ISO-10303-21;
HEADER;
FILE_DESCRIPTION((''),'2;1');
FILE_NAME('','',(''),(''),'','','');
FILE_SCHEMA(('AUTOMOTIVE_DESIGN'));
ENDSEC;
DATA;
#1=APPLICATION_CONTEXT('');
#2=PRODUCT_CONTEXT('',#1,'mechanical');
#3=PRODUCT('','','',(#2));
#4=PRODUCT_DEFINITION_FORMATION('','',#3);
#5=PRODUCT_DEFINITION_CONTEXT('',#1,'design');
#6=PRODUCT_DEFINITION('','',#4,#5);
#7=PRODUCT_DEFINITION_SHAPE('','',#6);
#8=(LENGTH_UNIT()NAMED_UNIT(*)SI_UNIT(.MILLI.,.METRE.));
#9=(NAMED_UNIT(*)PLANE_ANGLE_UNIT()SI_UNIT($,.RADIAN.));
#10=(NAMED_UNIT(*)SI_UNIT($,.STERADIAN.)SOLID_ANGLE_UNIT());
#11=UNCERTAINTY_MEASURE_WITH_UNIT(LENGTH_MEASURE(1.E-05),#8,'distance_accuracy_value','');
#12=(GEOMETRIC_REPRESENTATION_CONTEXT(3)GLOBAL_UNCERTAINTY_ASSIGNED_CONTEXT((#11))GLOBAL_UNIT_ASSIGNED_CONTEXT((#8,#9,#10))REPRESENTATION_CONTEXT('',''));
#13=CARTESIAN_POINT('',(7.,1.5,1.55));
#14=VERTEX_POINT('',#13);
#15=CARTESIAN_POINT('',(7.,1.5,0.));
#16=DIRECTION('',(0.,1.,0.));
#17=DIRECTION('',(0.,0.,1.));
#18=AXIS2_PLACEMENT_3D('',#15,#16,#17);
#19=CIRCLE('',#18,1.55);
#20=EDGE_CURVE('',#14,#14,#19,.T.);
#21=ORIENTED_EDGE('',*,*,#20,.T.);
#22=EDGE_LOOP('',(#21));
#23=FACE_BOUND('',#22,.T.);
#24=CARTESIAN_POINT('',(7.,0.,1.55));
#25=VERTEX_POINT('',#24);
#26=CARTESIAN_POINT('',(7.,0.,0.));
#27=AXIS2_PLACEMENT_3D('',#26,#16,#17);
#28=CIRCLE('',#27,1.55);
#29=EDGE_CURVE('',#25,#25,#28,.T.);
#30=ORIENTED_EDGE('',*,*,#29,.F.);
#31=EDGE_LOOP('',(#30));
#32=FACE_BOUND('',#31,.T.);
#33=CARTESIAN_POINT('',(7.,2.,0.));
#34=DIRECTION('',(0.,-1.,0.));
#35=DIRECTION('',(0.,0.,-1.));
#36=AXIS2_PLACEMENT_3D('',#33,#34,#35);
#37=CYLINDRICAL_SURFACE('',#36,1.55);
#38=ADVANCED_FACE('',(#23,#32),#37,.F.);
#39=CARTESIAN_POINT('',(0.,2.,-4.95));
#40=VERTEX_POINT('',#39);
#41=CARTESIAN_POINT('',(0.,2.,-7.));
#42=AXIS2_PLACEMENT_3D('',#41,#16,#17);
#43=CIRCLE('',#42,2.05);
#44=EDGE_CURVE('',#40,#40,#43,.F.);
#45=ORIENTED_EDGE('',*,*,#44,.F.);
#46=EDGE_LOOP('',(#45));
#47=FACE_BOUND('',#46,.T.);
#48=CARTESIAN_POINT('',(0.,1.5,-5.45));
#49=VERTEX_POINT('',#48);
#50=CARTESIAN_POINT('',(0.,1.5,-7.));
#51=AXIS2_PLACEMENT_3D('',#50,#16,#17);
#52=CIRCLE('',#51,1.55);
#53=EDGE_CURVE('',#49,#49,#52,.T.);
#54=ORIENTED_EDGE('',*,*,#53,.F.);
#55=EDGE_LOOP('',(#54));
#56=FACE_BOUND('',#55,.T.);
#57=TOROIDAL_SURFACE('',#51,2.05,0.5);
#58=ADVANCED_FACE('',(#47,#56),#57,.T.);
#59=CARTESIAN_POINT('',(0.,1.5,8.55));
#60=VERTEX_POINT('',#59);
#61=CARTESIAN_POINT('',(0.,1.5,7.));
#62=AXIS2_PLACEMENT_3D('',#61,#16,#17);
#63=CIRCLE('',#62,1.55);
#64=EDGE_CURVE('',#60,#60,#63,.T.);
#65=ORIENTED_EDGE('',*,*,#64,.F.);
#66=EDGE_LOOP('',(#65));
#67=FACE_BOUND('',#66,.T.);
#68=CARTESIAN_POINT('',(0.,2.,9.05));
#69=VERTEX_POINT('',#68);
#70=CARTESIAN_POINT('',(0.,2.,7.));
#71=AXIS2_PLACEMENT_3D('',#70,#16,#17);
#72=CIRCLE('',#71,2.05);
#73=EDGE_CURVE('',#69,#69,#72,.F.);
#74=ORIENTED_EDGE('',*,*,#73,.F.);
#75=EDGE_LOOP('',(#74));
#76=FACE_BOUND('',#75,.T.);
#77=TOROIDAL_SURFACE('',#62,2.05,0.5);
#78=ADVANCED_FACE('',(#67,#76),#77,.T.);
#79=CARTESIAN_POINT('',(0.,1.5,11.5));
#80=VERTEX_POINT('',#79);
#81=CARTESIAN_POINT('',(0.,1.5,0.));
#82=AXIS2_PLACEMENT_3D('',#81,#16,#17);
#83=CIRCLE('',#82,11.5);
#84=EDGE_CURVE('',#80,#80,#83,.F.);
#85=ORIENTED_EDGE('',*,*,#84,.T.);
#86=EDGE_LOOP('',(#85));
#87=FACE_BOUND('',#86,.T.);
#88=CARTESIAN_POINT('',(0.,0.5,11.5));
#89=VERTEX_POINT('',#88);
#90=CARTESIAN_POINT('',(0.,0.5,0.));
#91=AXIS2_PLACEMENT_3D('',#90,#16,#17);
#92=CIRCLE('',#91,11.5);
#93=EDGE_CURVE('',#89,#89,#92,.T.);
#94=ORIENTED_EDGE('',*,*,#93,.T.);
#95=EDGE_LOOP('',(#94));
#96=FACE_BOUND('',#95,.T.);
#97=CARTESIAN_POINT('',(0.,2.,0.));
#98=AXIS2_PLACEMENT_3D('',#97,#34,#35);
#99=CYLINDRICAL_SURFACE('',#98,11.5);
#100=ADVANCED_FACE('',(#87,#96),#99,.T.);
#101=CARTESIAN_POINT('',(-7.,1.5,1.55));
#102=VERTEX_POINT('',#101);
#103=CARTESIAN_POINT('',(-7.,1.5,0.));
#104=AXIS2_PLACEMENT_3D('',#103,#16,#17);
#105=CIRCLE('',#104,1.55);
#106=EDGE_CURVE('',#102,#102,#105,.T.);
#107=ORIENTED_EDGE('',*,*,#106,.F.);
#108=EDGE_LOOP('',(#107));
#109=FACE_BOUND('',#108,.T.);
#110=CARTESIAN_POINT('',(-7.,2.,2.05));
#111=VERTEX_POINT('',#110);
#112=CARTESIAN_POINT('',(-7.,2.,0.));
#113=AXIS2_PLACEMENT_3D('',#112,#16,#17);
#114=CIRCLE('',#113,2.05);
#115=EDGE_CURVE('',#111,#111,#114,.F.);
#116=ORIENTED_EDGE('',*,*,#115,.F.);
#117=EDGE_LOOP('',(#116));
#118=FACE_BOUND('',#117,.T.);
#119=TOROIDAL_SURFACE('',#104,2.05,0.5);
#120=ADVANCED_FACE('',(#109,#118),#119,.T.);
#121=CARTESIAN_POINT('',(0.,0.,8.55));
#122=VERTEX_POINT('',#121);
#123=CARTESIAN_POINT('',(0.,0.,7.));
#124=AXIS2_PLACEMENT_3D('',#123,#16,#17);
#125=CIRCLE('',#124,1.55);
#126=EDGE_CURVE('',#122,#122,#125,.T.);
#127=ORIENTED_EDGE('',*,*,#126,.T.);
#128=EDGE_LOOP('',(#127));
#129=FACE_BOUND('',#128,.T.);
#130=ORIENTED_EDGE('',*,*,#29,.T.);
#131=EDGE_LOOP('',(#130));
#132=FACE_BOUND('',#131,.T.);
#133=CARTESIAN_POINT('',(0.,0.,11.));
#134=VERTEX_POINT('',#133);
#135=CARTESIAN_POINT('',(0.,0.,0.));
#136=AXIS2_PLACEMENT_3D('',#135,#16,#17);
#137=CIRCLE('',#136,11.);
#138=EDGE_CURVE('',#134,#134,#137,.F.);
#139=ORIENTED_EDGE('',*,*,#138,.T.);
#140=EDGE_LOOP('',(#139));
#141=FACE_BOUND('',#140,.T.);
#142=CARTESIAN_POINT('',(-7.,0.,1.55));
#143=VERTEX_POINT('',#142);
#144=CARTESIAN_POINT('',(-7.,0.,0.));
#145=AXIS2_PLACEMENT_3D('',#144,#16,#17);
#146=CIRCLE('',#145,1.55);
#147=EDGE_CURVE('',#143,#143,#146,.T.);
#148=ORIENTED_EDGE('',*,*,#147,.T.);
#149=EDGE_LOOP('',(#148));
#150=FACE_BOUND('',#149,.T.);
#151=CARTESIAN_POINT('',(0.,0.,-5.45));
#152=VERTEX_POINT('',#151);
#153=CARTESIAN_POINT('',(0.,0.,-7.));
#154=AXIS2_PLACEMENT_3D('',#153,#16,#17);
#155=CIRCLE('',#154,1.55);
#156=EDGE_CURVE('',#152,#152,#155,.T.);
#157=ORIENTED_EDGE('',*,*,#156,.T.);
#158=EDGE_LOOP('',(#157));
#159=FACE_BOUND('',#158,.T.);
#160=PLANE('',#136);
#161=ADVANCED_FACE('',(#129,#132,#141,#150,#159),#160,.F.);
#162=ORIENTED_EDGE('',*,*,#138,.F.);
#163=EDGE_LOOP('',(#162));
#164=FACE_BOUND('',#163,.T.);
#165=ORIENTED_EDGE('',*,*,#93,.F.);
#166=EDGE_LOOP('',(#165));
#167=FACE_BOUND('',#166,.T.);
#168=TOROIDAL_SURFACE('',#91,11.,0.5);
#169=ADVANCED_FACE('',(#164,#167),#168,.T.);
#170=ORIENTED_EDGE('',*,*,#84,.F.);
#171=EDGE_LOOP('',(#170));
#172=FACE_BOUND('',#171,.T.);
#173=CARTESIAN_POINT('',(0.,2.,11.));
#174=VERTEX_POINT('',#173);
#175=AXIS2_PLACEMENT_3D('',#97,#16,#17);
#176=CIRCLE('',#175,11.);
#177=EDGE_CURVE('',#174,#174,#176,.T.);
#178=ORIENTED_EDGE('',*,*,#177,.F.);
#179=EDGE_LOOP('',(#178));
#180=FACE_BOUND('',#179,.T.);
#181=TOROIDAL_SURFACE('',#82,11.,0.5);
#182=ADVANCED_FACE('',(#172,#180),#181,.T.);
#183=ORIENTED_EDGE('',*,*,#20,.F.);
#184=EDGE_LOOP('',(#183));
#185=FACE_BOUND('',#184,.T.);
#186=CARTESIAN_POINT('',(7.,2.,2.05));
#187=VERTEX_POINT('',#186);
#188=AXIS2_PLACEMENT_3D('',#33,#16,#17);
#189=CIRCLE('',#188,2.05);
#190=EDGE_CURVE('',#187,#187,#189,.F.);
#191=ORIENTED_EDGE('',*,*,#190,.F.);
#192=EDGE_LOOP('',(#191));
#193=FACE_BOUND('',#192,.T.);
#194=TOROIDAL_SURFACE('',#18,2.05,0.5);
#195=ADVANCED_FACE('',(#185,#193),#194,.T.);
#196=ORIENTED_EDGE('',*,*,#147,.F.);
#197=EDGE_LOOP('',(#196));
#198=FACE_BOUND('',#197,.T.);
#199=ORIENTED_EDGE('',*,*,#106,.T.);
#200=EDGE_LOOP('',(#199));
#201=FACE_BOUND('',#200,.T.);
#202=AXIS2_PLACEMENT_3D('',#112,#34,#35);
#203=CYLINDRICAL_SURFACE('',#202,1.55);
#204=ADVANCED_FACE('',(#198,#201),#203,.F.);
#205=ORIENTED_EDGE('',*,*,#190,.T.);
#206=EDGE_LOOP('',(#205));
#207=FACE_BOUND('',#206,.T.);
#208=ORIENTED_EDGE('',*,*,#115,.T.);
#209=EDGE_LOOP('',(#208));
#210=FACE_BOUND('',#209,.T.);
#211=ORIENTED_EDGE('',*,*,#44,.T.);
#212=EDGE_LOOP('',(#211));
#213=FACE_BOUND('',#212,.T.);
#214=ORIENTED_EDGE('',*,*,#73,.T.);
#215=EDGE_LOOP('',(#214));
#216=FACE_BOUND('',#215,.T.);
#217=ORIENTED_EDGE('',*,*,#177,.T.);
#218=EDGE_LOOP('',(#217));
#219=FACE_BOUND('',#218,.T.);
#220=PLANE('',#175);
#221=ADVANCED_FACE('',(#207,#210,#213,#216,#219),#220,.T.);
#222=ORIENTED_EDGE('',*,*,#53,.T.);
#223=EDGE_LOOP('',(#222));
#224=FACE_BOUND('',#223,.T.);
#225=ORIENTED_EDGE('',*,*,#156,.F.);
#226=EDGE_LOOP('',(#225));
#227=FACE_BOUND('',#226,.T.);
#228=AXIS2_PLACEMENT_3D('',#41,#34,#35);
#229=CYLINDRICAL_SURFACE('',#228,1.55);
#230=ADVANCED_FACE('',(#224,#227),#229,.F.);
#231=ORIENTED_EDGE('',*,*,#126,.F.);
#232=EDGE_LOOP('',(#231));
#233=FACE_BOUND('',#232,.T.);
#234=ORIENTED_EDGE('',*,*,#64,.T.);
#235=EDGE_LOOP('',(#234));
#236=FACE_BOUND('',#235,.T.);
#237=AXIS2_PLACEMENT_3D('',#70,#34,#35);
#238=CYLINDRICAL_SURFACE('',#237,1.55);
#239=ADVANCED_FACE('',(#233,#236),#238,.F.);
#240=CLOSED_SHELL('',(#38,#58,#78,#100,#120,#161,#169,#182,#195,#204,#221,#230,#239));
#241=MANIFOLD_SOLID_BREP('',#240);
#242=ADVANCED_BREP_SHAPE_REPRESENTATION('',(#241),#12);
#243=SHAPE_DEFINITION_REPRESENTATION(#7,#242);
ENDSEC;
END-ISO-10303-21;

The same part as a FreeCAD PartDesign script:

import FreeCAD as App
import Part
import Sketcher
from FreeCAD import Vector


def edges_at(feature, points):
    """Names of the edges that pass closest to the given points."""
    edges = feature.Shape.Edges
    near = lambda p: min(range(len(edges)), key=lambda i: edges[i].distToShape(Part.Vertex(*p))[0])
    return sorted({f"Edge{near(p) + 1}" for p in points})

doc = App.newDocument("Part")
body = doc.addObject("PartDesign::Body", "Body")

sketch1 = doc.addObject("Sketcher::SketchObject", "Sketch")
body.addObject(sketch1)
sketch1.AttachmentSupport = (doc.XZ_Plane, [""])
sketch1.MapMode = "FlatFace"
sketch1.addGeometry(Part.Circle(Vector(0, 0, 0), Vector(0, 0, 1), 11.5), False)
sketch1.addGeometry(Part.Circle(Vector(0, -7, 0), Vector(0, 0, 1), 1.6), False)
sketch1.addGeometry(Part.Circle(Vector(-7, 0, 0), Vector(0, 0, 1), 1.6), False)
sketch1.addGeometry(Part.Circle(Vector(7, 0, 0), Vector(0, 0, 1), 1.6), False)
sketch1.addGeometry(Part.Circle(Vector(0, 7, 0), Vector(0, 0, 1), 1.6), False)
sketch1.addConstraint(Sketcher.Constraint("Coincident", 0, 3, -1, 1))
sketch1.addConstraint(Sketcher.Constraint("Equal", 1, 2))
sketch1.addConstraint(Sketcher.Constraint("Equal", 2, 3))
sketch1.addConstraint(Sketcher.Constraint("Equal", 3, 4))
sketch1.addConstraint(Sketcher.Constraint("Symmetric", 2, 3, 3, 3, -1, 1))
sketch1.addConstraint(Sketcher.Constraint("Symmetric", 1, 3, 4, 3, -1, 1))
sketch1.addConstraint(Sketcher.Constraint("PointOnObject", 1, 3, -2))
sketch1.addConstraint(Sketcher.Constraint("PointOnObject", 2, 3, -1))
sketch1.addConstraint(Sketcher.Constraint("Diameter", 0, 23.0))
sketch1.addConstraint(Sketcher.Constraint("Diameter", 1, 3.1))
sketch1.addConstraint(Sketcher.Constraint("DistanceY", 1, 3, -1, 1, 7.0))
sketch1.addConstraint(Sketcher.Constraint("DistanceX", 2, 3, -1, 1, 7.0))
pad1 = doc.addObject("PartDesign::Pad", "Pad")
body.addObject(pad1)
pad1.Profile = sketch1
pad1.Length = 2
pad1.Reversed = True
doc.recompute()

fillet = doc.addObject("PartDesign::Fillet", "Fillet")
body.addObject(fillet)
fillet.Base = (pad1, edges_at(pad1, [
    (0, 2, 5.45),
    (-7, 2, -1.55),
    (0, 0, -11.5),
    (0, 2, -11.5),
    (0, 2, -8.55),
    (7, 2, -1.55),
]))
fillet.Radius = 0.5

doc.recompute()
